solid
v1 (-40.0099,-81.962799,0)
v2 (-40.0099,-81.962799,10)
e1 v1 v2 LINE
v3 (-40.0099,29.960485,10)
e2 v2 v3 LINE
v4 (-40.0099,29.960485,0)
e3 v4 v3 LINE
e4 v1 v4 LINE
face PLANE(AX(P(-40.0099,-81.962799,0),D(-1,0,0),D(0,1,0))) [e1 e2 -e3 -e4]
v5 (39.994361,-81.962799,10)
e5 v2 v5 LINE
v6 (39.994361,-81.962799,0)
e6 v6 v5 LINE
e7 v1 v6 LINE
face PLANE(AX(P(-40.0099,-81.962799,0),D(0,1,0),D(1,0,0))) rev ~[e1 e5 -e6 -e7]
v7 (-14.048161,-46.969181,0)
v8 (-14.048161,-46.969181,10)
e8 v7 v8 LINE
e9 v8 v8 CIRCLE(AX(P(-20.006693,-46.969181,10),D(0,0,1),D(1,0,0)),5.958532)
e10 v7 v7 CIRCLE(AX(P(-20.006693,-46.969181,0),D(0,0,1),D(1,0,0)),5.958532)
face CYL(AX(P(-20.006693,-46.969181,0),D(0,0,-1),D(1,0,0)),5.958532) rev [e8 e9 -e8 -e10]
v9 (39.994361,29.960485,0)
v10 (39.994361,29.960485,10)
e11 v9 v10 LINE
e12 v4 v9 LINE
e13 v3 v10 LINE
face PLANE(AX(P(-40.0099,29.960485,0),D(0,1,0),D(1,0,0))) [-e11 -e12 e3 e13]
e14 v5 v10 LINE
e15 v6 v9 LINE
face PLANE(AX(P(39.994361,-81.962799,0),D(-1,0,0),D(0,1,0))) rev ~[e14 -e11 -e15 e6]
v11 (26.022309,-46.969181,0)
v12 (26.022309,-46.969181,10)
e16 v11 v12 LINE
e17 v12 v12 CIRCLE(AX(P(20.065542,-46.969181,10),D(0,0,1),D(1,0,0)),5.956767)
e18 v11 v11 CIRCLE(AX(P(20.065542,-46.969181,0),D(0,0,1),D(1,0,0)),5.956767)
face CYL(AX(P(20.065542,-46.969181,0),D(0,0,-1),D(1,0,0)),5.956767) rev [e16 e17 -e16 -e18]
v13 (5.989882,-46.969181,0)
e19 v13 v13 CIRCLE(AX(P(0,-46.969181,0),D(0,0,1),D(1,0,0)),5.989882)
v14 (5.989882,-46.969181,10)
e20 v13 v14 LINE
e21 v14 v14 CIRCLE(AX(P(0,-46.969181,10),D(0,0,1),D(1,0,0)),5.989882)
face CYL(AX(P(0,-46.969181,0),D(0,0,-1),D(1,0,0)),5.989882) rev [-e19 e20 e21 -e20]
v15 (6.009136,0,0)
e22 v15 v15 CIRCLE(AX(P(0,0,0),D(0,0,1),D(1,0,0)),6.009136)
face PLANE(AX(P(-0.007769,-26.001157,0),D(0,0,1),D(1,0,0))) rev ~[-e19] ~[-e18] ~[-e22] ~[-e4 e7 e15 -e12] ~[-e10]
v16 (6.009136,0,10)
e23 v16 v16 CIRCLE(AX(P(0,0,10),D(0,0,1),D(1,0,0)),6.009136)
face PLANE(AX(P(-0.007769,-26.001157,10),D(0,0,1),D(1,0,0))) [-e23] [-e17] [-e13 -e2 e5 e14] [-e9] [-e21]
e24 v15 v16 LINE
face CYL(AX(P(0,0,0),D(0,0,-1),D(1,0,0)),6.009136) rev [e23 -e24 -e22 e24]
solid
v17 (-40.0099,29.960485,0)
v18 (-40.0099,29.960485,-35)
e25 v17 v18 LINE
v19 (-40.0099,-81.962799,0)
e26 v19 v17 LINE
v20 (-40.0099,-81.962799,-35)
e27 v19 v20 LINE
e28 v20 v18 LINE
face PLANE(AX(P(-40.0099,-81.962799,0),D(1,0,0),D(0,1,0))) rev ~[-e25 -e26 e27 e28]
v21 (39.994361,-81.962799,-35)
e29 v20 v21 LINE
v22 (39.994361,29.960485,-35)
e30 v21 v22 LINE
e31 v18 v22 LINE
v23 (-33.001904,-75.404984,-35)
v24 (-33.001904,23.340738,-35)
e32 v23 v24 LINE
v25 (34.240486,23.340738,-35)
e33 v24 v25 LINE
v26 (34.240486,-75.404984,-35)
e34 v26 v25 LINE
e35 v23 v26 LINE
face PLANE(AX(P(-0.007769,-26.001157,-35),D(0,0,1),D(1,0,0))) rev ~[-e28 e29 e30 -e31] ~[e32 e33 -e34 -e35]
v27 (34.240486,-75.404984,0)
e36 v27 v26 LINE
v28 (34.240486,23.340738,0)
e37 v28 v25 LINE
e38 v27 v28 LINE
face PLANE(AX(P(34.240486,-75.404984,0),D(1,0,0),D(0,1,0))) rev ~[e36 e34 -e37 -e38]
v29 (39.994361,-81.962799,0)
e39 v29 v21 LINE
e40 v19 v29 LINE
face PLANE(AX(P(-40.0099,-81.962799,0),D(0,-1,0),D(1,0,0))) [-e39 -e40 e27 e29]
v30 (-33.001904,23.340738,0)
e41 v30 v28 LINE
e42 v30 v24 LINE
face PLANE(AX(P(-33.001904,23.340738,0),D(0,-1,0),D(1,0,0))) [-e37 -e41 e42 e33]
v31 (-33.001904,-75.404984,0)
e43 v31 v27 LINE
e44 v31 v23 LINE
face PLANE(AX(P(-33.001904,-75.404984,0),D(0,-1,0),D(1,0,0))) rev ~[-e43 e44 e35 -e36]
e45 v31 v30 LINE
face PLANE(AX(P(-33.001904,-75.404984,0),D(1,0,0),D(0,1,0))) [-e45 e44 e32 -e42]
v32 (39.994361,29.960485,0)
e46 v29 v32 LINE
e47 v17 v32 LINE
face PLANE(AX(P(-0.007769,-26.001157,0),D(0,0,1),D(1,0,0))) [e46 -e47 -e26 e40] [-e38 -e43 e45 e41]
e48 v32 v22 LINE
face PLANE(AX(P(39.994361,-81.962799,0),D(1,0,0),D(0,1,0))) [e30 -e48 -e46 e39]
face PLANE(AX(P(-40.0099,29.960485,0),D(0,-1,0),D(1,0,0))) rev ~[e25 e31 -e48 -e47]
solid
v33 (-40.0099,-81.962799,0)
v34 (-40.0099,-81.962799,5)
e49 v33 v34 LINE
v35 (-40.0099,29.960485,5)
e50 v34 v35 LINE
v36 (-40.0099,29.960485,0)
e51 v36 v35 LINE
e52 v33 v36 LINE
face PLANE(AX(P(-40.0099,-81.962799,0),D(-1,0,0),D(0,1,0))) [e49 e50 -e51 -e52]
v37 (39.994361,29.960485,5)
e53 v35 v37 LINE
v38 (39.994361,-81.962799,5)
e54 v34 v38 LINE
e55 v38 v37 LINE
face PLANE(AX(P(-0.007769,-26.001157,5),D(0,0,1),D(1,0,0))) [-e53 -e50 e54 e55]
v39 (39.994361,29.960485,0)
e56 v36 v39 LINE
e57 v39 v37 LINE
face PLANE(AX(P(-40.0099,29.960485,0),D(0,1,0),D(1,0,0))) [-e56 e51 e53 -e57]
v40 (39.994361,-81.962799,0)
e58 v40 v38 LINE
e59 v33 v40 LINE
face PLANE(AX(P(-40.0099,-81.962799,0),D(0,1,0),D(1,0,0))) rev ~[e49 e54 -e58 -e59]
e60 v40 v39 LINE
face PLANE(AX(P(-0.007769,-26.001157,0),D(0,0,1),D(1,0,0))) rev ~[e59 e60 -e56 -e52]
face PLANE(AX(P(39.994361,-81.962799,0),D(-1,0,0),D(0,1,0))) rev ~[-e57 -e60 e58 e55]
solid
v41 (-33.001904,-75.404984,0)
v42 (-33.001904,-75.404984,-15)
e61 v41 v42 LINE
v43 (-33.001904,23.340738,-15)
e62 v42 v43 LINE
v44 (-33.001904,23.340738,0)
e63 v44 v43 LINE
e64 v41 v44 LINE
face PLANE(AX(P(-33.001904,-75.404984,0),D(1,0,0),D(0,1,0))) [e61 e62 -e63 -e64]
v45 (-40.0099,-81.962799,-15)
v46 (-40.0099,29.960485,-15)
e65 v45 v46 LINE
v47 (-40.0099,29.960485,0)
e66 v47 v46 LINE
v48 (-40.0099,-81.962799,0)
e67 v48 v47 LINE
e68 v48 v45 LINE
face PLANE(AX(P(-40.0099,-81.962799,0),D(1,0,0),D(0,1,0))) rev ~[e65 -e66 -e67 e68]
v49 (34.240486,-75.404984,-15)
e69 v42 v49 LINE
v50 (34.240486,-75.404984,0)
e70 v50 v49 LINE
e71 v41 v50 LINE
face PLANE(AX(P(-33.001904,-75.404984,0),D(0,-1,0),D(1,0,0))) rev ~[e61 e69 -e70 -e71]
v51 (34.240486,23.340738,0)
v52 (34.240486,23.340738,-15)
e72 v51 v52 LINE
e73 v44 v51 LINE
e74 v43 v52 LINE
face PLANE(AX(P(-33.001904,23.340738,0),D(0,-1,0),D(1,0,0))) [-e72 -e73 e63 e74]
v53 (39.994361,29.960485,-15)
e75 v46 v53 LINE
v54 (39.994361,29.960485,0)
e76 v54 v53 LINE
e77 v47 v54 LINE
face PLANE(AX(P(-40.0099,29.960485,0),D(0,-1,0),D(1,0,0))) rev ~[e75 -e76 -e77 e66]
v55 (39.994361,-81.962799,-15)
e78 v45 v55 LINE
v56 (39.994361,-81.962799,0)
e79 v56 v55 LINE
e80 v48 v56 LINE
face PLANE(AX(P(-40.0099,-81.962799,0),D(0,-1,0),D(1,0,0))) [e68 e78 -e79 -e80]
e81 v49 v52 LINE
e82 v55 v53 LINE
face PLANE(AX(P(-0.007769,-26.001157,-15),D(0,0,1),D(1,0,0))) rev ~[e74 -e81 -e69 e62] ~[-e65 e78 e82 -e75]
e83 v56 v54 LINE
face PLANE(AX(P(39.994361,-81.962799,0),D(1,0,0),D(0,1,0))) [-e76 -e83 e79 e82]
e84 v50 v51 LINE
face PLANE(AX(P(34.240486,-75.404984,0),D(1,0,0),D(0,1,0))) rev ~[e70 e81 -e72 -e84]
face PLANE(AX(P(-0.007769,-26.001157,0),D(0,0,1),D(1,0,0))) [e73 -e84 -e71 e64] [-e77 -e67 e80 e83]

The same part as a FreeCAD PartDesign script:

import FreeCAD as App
import Part
import Sketcher

doc = App.newDocument("Part")
body = doc.addObject("PartDesign::Body", "Body")

sketch1 = doc.addObject("Sketcher::SketchObject", "Sketch")
body.addObject(sketch1)
sketch1.AttachmentSupport = (doc.XY_Plane, [""])
sketch1.MapMode = "FlatFace"
sketch1.addGeometry([
    Part.LineSegment(App.Vector(-40, 30, 0), App.Vector(-40, -82, 0)),
    Part.LineSegment(App.Vector(-40, -82, 0), App.Vector(40, -82, 0)),
    Part.LineSegment(App.Vector(40, -82, 0), App.Vector(40, 30, 0)),
    Part.LineSegment(App.Vector(40, 30, 0), App.Vector(-40, 30, 0)),
    Part.Circle(App.Vector(-20, -47, 0), App.Vector(0, 0, 1), 6),
    Part.Circle(App.Vector(0, -47, 0), App.Vector(0, 0, 1), 6),
    Part.Circle(App.Vector(20, -47, 0), App.Vector(0, 0, 1), 6),
    Part.Circle(App.Vector(0, 0, 0), App.Vector(0, 0, 1), 6),
], False)
sketch1.addConstraint([
    Sketcher.Constraint("Coincident", 0, 2, 1, 1),
    Sketcher.Constraint("Coincident", 1, 2, 2, 1),
    Sketcher.Constraint("Coincident", 2, 2, 3, 1),
    Sketcher.Constraint("Coincident", 3, 2, 0, 1),
    Sketcher.Constraint("Vertical", 0),
    Sketcher.Constraint("Horizontal", 1),
    Sketcher.Constraint("Vertical", 2),
    Sketcher.Constraint("Horizontal", 3),
    Sketcher.Constraint("Coincident", 7, 3, -1, 1),
    Sketcher.Constraint("PointOnObject", 5, 3, -2),
    Sketcher.Constraint("Horizontal", 4, 3, 5, 3),
    Sketcher.Constraint("Horizontal", 5, 3, 6, 3),
    Sketcher.Constraint("Diameter", 4, 11.917064),
    Sketcher.Constraint("Diameter", 5, 11.979764),
    Sketcher.Constraint("Diameter", 6, 11.913534),
    Sketcher.Constraint("Diameter", 7, 12.018272),
    Sketcher.Constraint("DistanceX", 1, 1, 1, 2, 80.004261),
    Sketcher.Constraint("DistanceX", 0, 2, -1, 1, 40.0099),
    Sketcher.Constraint("DistanceY", 0, 2, -1, 1, 81.962799),
    Sketcher.Constraint("DistanceY", 0, 2, 0, 1, 111.923284),
    Sketcher.Constraint("DistanceY", 4, 3, -1, 1, 46.969181),
    Sketcher.Constraint("DistanceX", 0, 2, 6, 3, 60.075442),
    Sketcher.Constraint("DistanceX", 4, 3, -1, 1, 20.006693),
])
pad1 = doc.addObject("PartDesign::Pad", "Pad")
body.addObject(pad1)
pad1.Profile = sketch1
pad1.Length = 10
body2 = doc.addObject("PartDesign::Body", "Body001")

sketch2 = doc.addObject("Sketcher::SketchObject", "Sketch001")
body2.addObject(sketch2)
sketch2.AttachmentSupport = (doc.getObject("XY_Plane001"), [""])
sketch2.MapMode = "FlatFace"
sketch2.addGeometry([
    Part.LineSegment(App.Vector(-40, 30, 0), App.Vector(-40, -82, 0)),
    Part.LineSegment(App.Vector(-40, -82, 0), App.Vector(40, -82, 0)),
    Part.LineSegment(App.Vector(40, -82, 0), App.Vector(40, 30, 0)),
    Part.LineSegment(App.Vector(40, 30, 0), App.Vector(-40, 30, 0)),
    Part.LineSegment(App.Vector(34, -75, 0), App.Vector(-33, -75, 0)),
    Part.LineSegment(App.Vector(-33, -75, 0), App.Vector(-33, 23, 0)),
    Part.LineSegment(App.Vector(-33, 23, 0), App.Vector(34, 23, 0)),
    Part.LineSegment(App.Vector(34, 23, 0), App.Vector(34, -75, 0)),
], False)
sketch2.addConstraint([
    Sketcher.Constraint("Coincident", 0, 2, 1, 1),
    Sketcher.Constraint("Coincident", 1, 2, 2, 1),
    Sketcher.Constraint("Coincident", 2, 2, 3, 1),
    Sketcher.Constraint("Coincident", 3, 2, 0, 1),
    Sketcher.Constraint("Coincident", 4, 2, 5, 1),
    Sketcher.Constraint("Coincident", 5, 2, 6, 1),
    Sketcher.Constraint("Coincident", 6, 2, 7, 1),
    Sketcher.Constraint("Coincident", 7, 2, 4, 1),
    Sketcher.Constraint("Vertical", 0),
    Sketcher.Constraint("Horizontal", 1),
    Sketcher.Constraint("Vertical", 2),
    Sketcher.Constraint("Horizontal", 3),
    Sketcher.Constraint("Horizontal", 4),
    Sketcher.Constraint("Vertical", 5),
    Sketcher.Constraint("Horizontal", 6),
    Sketcher.Constraint("Vertical", 7),
    Sketcher.Constraint("DistanceX", 1, 1, 1, 2, 80.004261),
    Sketcher.Constraint("DistanceX", 4, 2, 4, 1, 67.24239),
    Sketcher.Constraint("DistanceY", 5, 1, 5, 2, 98.745722),
    Sketcher.Constraint("DistanceX", 0, 2, -1, 1, 40.0099),
    Sketcher.Constraint("DistanceY", 0, 2, -1, 1, 81.962799),
    Sketcher.Constraint("DistanceY", 0, 2, 0, 1, 111.923284),
    Sketcher.Constraint("DistanceY", -1, 1, 5, 2, 23.340738),
    Sketcher.Constraint("DistanceX", 4, 2, -1, 1, 33.001904),
])
pad2 = doc.addObject("PartDesign::Pad", "Pad001")
body2.addObject(pad2)
pad2.Profile = sketch2
pad2.Length = 35
pad2.Reversed = True
body3 = doc.addObject("PartDesign::Body", "Body002")

sketch3 = doc.addObject("Sketcher::SketchObject", "Sketch002")
body3.addObject(sketch3)
sketch3.AttachmentSupport = (doc.getObject("XY_Plane002"), [""])
sketch3.MapMode = "FlatFace"
sketch3.addGeometry([
    Part.LineSegment(App.Vector(-40, 30, 0), App.Vector(-40, -82, 0)),
    Part.LineSegment(App.Vector(-40, -82, 0), App.Vector(40, -82, 0)),
    Part.LineSegment(App.Vector(40, -82, 0), App.Vector(40, 30, 0)),
    Part.LineSegment(App.Vector(40, 30, 0), App.Vector(-40, 30, 0)),
    Part.LineSegment(App.Vector(34, -75, 0), App.Vector(-33, -75, 0)),
    Part.LineSegment(App.Vector(-33, -75, 0), App.Vector(-33, 23, 0)),
    Part.LineSegment(App.Vector(-33, 23, 0), App.Vector(34, 23, 0)),
    Part.LineSegment(App.Vector(34, 23, 0), App.Vector(34, -75, 0)),
], False)
sketch3.addConstraint([
    Sketcher.Constraint("Coincident", 0, 2, 1, 1),
    Sketcher.Constraint("Coincident", 1, 2, 2, 1),
    Sketcher.Constraint("Coincident", 2, 2, 3, 1),
    Sketcher.Constraint("Coincident", 3, 2, 0, 1),
    Sketcher.Constraint("Coincident", 4, 2, 5, 1),
    Sketcher.Constraint("Coincident", 5, 2, 6, 1),
    Sketcher.Constraint("Coincident", 6, 2, 7, 1),
    Sketcher.Constraint("Coincident", 7, 2, 4, 1),
    Sketcher.Constraint("Vertical", 0),
    Sketcher.Constraint("Horizontal", 1),
    Sketcher.Constraint("Vertical", 2),
    Sketcher.Constraint("Horizontal", 3),
    Sketcher.Constraint("Horizontal", 4),
    Sketcher.Constraint("Vertical", 5),
    Sketcher.Constraint("Horizontal", 6),
    Sketcher.Constraint("Vertical", 7),
    Sketcher.Constraint("DistanceX", 1, 1, 1, 2, 80.004261),
    Sketcher.Constraint("DistanceX", 4, 2, 4, 1, 67.24239),
    Sketcher.Constraint("DistanceY", 5, 1, 5, 2, 98.745722),
    Sketcher.Constraint("DistanceX", 0, 2, -1, 1, 40.0099),
    Sketcher.Constraint("DistanceY", 0, 2, -1, 1, 81.962799),
    Sketcher.Constraint("DistanceY", 0, 2, 0, 1, 111.923284),
    Sketcher.Constraint("DistanceY", -1, 1, 5, 2, 23.340738),
    Sketcher.Constraint("DistanceX", 4, 2, -1, 1, 33.001904),
])
pad3 = doc.addObject("PartDesign::Pad", "Pad002")
body3.addObject(pad3)
pad3.Profile = sketch3
pad3.Length = 15
pad3.Reversed = True
body4 = doc.addObject("PartDesign::Body", "Body003")

sketch4 = doc.addObject("Sketcher::SketchObject", "Sketch003")
body4.addObject(sketch4)
sketch4.AttachmentSupport = (doc.getObject("XY_Plane003"), [""])
sketch4.MapMode = "FlatFace"
sketch4.addGeometry([
    Part.LineSegment(App.Vector(-40, 30, 0), App.Vector(-40, -82, 0)),
    Part.LineSegment(App.Vector(-40, -82, 0), App.Vector(40, -82, 0)),
    Part.LineSegment(App.Vector(40, -82, 0), App.Vector(40, 30, 0)),
    Part.LineSegment(App.Vector(40, 30, 0), App.Vector(-40, 30, 0)),
], False)
sketch4.addConstraint([
    Sketcher.Constraint("Coincident", 0, 2, 1, 1),
    Sketcher.Constraint("Coincident", 1, 2, 2, 1),
    Sketcher.Constraint("Coincident", 2, 2, 3, 1),
    Sketcher.Constraint("Coincident", 3, 2, 0, 1),
    Sketcher.Constraint("Vertical", 0),
    Sketcher.Constraint("Horizontal", 1),
    Sketcher.Constraint("Vertical", 2),
    Sketcher.Constraint("Horizontal", 3),
    Sketcher.Constraint("DistanceX", 1, 1, 1, 2, 80.004261),
    Sketcher.Constraint("DistanceX", 0, 2, -1, 1, 40.0099),
    Sketcher.Constraint("DistanceY", 0, 2, -1, 1, 81.962799),
    Sketcher.Constraint("DistanceY", 0, 2, 0, 1, 111.923284),
])
pad4 = doc.addObject("PartDesign::Pad", "Pad003")
body4.addObject(pad4)
pad4.Profile = sketch4
pad4.Length = 5

doc.recompute()
